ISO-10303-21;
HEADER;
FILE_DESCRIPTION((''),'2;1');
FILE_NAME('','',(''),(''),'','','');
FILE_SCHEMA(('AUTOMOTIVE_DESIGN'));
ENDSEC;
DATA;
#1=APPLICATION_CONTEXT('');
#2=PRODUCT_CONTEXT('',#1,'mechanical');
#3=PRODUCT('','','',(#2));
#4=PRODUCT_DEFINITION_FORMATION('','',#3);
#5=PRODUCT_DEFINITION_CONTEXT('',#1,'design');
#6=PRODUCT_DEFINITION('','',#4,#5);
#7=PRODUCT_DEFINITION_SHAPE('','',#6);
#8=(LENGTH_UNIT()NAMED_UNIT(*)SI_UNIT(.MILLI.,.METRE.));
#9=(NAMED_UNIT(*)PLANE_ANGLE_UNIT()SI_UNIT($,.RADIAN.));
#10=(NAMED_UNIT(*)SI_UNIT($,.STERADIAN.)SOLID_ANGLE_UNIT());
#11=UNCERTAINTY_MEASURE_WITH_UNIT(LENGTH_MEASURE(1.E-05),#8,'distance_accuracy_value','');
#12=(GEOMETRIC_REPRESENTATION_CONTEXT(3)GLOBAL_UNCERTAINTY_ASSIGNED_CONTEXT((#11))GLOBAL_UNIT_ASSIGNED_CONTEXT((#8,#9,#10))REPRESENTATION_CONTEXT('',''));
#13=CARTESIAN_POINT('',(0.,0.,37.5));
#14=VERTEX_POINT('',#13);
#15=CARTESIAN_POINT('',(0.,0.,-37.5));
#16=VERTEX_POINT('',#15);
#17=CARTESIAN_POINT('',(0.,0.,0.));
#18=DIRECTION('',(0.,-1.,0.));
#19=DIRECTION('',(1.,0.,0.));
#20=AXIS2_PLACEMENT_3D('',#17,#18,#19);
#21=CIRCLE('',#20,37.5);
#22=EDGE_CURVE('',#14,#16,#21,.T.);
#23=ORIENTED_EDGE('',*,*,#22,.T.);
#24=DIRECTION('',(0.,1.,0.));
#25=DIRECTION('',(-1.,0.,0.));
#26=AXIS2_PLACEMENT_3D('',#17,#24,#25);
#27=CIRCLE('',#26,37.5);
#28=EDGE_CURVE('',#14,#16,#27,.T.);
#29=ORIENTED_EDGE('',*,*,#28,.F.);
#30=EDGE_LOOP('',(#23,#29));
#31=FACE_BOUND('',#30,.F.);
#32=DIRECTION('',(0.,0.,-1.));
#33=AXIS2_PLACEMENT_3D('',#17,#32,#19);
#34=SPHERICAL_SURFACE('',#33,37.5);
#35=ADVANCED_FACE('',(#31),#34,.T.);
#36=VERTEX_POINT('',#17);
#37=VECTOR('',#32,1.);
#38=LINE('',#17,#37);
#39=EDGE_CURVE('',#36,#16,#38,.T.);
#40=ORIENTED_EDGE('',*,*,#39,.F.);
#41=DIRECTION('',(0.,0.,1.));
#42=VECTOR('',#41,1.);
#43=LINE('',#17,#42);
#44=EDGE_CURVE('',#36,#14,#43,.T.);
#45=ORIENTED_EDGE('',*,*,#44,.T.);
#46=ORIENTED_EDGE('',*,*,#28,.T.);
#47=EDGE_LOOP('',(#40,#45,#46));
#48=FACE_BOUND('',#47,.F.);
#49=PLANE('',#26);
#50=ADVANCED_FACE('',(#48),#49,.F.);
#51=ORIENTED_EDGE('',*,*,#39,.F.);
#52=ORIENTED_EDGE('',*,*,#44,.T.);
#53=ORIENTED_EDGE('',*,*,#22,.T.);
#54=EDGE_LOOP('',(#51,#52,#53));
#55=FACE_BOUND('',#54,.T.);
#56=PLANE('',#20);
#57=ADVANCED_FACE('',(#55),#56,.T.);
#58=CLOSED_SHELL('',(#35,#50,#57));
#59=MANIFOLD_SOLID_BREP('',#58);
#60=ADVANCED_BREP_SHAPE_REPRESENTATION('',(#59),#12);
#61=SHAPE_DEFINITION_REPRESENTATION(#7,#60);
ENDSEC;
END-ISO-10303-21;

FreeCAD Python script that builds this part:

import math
import FreeCAD as App
import Part
import Sketcher

doc = App.newDocument("Part")
params = doc.addObject("Spreadsheet::Sheet", "Params")
for row, (alias, value) in enumerate([
    ("sketch1_radius", "37.5 mm"),
    ("revolution_angle", "180 deg"),
], start=1):
    params.set(f"A{row}", alias)
    params.set(f"B{row}", "=" + value)
    params.setAlias(f"B{row}", alias)

body = doc.addObject("PartDesign::Body", "Body")

# Sketch on XZ plane
sketch1 = body.newObject("Sketcher::SketchObject", "Sketch")
sketch1.AttachmentSupport = (doc.getObject("XZ_Plane"), [""])
sketch1.MapMode = "FlatFace"
sketch1.addGeometry([
    Part.LineSegment(App.Vector(0, -38, 0), App.Vector(0, 38, 0)),
    Part.ArcOfCircle(Part.Circle(App.Vector(0, 0, 0), App.Vector(0, 0, 1), 38), math.radians(-90), math.radians(90)),
], False)
sketch1.addConstraint([
    Sketcher.Constraint("Coincident", 0, 1, 1, 1),
    Sketcher.Constraint("Coincident", 1, 2, 0, 2),
    Sketcher.Constraint("Vertical", 0),
    Sketcher.Constraint("Coincident", 1, 3, -1, 1),
    Sketcher.Constraint("PointOnObject", 0, 1, -2),
    Sketcher.Constraint("Radius", 1, 37.5),
])
sketch1.setExpression("Constraints[5]", "Params.sketch1_radius")
revolution = body.newObject("PartDesign::Revolution", "Revolution")
revolution.Profile = sketch1
revolution.ReferenceAxis = (sketch1, ["V_Axis"])
revolution.setExpression("Angle", "Params.revolution_angle")

doc.recompute()
